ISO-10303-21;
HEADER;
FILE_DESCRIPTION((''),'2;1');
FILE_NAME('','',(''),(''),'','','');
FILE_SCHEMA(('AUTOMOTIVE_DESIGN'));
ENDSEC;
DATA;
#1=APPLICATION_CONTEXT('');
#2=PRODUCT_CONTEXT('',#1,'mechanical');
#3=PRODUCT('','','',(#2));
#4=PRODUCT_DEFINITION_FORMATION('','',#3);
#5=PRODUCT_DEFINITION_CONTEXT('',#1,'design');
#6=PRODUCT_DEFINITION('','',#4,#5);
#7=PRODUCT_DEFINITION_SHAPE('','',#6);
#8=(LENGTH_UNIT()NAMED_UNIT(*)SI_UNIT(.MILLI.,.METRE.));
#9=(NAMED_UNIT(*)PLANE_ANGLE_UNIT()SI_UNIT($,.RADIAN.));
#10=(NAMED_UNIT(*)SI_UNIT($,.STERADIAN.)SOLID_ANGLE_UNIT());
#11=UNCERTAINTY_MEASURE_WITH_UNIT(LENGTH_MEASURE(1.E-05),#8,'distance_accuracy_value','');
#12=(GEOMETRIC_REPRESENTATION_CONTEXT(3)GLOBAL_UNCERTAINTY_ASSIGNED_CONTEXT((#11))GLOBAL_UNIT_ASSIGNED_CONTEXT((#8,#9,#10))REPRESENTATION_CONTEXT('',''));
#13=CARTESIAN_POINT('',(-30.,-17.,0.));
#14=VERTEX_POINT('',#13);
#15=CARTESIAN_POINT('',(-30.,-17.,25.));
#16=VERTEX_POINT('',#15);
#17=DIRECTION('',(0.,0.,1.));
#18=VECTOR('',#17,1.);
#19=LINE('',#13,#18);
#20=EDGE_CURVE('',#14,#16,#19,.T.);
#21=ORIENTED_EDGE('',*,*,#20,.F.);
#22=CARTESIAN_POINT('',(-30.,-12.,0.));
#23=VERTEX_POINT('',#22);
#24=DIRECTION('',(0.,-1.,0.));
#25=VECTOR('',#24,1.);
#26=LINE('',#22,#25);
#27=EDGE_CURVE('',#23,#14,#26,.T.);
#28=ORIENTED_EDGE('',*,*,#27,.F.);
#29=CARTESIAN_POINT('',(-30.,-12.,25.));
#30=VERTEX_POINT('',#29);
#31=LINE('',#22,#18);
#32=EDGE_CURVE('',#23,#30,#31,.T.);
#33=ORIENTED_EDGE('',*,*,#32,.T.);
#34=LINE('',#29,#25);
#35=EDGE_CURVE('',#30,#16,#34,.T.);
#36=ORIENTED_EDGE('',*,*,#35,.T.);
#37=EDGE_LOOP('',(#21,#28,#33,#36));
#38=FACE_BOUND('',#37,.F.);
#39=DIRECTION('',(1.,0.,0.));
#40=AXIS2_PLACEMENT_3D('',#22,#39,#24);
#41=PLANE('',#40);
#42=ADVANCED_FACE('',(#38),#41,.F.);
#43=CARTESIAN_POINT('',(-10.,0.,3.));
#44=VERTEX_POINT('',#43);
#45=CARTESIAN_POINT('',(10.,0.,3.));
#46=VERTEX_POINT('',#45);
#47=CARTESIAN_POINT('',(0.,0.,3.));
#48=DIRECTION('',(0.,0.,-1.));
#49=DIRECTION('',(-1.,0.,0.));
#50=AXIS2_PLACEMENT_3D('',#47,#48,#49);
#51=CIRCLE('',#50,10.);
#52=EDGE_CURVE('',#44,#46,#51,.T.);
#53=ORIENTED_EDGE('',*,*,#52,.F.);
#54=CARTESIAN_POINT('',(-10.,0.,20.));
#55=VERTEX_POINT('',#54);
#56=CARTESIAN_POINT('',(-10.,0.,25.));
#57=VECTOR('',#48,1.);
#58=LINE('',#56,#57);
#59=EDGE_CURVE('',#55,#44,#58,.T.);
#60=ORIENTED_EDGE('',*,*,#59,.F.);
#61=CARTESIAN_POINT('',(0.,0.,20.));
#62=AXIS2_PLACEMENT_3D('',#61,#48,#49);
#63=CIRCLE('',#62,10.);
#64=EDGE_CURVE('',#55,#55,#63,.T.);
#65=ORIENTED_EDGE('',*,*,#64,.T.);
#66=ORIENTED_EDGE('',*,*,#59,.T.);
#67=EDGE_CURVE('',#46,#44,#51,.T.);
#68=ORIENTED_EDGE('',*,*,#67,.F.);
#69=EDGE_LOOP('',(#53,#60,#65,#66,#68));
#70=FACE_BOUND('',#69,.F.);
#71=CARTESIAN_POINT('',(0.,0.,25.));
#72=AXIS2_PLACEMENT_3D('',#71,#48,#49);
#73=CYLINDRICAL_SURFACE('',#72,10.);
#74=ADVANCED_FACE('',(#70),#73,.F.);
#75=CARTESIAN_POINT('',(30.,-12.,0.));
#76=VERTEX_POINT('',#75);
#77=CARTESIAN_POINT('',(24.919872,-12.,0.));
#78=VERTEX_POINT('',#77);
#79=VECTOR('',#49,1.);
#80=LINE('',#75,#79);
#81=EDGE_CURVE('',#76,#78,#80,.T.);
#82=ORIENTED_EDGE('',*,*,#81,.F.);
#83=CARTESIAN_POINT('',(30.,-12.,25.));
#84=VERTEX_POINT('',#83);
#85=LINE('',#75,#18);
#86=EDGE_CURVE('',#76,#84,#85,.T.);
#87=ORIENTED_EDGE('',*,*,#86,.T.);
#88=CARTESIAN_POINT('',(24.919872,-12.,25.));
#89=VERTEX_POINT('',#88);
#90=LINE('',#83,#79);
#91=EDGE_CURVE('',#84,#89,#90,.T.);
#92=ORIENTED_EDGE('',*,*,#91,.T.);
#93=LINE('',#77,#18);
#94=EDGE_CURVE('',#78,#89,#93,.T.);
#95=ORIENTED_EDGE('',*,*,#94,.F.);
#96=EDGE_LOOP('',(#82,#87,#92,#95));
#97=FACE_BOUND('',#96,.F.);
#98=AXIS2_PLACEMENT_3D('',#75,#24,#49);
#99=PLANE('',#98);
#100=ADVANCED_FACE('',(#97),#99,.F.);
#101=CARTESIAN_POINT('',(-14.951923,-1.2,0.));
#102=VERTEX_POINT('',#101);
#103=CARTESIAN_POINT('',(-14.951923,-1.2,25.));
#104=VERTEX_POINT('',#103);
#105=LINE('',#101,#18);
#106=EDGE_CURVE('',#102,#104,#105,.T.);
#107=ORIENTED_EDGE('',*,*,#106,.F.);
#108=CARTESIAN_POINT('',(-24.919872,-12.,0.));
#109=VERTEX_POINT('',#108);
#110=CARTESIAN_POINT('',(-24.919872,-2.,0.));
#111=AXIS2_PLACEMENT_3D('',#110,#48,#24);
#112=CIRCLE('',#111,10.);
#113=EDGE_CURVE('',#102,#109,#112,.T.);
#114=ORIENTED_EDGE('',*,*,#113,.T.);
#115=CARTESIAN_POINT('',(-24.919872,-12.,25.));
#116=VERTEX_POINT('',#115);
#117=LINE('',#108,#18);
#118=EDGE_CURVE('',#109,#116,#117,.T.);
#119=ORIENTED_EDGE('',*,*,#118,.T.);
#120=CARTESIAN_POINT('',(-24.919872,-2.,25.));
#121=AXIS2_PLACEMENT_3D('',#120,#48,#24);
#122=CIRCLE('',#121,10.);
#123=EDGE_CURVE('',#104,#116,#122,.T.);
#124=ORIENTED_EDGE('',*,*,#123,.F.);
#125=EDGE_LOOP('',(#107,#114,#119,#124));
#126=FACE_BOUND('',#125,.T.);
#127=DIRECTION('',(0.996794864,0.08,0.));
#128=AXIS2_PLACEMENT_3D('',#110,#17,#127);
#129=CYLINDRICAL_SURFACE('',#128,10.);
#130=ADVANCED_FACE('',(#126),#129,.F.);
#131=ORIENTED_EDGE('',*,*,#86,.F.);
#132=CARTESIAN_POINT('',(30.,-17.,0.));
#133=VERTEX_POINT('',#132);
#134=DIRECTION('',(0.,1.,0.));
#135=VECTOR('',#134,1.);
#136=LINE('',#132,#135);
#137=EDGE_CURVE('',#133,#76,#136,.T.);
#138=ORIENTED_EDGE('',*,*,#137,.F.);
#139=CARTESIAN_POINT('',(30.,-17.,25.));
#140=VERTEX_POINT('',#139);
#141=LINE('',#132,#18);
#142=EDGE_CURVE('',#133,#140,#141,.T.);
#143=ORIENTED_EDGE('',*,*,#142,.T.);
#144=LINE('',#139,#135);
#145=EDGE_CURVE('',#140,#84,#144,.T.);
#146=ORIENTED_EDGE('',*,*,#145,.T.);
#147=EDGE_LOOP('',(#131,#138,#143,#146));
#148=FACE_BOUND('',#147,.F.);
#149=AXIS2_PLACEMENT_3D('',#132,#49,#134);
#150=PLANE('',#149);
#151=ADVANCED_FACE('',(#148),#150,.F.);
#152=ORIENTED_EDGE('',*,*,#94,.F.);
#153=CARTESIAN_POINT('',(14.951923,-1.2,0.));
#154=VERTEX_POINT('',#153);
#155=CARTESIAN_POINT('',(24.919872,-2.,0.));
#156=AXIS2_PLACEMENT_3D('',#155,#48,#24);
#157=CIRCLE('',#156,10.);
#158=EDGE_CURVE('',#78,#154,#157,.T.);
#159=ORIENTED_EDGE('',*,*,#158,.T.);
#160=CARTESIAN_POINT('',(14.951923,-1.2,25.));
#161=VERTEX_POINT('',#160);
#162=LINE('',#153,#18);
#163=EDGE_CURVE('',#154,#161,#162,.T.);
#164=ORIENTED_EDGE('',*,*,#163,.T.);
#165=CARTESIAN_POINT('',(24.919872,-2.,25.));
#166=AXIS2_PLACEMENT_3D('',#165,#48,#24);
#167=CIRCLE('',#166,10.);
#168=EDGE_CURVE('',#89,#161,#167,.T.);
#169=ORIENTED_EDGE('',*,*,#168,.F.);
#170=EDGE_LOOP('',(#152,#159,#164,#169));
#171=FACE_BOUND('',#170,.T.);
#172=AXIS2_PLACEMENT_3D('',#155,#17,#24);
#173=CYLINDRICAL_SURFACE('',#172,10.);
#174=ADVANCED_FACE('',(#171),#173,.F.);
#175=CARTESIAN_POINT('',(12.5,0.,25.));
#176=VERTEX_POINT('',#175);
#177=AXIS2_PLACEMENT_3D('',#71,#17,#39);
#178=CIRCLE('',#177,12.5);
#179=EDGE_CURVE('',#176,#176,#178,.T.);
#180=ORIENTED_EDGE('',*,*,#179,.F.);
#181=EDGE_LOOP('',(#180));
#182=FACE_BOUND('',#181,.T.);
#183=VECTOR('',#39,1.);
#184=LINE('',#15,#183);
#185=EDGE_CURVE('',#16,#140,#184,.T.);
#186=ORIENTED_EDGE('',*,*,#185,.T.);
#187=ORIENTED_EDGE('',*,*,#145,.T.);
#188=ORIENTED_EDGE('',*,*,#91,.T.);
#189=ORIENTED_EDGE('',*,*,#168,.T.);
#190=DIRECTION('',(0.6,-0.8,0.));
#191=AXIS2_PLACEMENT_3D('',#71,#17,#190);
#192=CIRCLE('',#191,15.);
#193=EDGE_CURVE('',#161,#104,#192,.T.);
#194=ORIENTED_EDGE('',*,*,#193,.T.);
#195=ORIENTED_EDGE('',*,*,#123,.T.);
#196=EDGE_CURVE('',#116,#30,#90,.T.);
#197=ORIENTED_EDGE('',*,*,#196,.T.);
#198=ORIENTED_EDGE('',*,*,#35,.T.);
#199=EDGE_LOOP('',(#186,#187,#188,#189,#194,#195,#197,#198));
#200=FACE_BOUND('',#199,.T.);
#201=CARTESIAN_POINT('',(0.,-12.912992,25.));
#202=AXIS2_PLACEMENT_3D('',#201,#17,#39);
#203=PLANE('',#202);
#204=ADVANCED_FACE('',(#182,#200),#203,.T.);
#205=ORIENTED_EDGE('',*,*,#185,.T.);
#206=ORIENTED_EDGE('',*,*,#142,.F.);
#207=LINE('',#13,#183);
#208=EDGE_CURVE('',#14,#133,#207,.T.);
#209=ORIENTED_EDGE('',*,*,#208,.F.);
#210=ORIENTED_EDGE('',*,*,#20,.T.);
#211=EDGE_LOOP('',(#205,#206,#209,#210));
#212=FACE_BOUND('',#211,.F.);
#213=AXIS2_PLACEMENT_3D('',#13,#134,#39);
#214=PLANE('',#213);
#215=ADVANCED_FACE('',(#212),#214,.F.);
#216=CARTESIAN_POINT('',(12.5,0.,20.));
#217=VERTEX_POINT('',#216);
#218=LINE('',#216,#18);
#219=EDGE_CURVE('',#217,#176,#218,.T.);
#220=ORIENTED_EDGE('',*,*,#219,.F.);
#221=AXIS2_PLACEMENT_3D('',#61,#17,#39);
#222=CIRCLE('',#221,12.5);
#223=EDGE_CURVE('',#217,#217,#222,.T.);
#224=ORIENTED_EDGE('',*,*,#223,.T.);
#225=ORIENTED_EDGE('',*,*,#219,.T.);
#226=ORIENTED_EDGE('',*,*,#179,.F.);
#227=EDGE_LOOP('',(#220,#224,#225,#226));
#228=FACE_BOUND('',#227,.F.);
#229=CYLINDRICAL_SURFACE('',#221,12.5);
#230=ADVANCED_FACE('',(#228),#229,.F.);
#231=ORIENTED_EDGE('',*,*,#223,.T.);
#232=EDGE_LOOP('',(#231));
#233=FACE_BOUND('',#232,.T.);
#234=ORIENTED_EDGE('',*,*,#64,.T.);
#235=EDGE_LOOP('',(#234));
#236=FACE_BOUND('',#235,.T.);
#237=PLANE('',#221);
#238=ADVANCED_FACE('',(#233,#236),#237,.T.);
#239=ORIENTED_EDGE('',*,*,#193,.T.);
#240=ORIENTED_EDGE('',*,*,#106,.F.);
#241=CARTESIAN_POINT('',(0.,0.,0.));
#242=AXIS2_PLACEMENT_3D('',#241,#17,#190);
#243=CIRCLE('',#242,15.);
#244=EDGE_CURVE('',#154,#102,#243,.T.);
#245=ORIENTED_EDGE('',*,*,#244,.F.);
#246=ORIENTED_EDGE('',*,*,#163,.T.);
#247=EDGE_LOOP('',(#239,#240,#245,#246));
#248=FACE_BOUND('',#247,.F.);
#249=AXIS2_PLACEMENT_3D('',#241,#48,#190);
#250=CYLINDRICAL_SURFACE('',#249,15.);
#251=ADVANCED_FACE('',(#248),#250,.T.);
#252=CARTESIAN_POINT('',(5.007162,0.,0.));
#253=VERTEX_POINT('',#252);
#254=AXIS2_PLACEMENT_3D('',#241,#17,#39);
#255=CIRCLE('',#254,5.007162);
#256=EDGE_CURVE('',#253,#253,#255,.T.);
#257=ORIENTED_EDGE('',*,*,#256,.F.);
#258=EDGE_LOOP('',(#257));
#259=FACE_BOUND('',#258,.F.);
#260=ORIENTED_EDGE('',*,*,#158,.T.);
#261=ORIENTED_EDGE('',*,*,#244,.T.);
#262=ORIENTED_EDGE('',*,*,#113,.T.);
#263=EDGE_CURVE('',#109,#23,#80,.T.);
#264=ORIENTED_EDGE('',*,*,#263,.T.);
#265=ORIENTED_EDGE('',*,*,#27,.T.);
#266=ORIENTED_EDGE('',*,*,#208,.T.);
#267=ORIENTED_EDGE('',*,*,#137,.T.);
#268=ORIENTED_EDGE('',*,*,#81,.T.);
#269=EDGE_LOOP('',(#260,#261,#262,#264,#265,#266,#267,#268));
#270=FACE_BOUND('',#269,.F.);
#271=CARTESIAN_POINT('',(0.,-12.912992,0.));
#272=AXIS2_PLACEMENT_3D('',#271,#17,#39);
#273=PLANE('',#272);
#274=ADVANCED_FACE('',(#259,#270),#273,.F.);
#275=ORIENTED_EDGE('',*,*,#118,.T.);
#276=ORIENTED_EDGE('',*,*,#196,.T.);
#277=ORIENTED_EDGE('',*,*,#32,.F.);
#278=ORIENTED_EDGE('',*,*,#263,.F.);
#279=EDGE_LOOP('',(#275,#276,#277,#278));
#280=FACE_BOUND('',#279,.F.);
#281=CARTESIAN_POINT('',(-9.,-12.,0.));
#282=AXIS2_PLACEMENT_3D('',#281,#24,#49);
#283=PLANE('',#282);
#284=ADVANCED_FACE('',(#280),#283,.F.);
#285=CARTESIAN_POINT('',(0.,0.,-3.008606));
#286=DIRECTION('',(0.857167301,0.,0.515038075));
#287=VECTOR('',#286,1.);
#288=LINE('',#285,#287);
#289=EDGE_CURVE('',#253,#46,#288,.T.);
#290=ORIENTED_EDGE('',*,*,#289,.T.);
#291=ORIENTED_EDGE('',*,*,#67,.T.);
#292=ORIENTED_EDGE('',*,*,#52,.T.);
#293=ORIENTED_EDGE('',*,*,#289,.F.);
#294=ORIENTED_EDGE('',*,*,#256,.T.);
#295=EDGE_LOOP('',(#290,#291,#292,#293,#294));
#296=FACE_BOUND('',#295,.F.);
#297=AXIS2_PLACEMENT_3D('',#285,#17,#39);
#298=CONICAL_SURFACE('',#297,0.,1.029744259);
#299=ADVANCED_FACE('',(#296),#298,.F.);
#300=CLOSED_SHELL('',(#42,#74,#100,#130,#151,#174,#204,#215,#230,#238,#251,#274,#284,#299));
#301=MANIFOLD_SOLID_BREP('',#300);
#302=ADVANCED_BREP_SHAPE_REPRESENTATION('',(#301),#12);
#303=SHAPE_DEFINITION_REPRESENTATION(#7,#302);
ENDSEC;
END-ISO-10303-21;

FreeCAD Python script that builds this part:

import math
import FreeCAD as App
import Part
import Sketcher

V = App.Vector
Q = App.Units.Quantity


def edges_at(feature, points):
    """Names of the edges that pass closest to the given points."""
    edges = feature.Shape.Edges
    near = lambda p: min(range(len(edges)), key=lambda i: edges[i].distToShape(Part.Vertex(*p))[0])
    return sorted({f"Edge{near(p) + 1}" for p in points})

doc = App.newDocument("Part")
params = doc.addObject("Spreadsheet::Sheet", "Params")
for row, (alias, value) in enumerate([
    ("sketch1_radius", "15 mm"),
    ("sketch1_width", "60 mm"),
    ("sketch1_width2", "21 mm"),
    ("sketch1_height", "5 mm"),
    ("pad1_length", "25 mm"),
    ("fillet_radius", "10 mm"),
    ("sketch2_diameter", "20 mm"),
    ("hole_diameter", "20 mm"),
    ("hole_depth", "22 mm"),
    ("hole_cbore_diameter", "25 mm"),
    ("hole_cbore_depth", "5 mm"),
], start=1):
    params.set(f"A{row}", alias)
    params.set(f"B{row}", "=" + value)
    params.setAlias(f"B{row}", alias)

body = doc.addObject("PartDesign::Body", "Body")

# Sketch on XY plane
sketch1 = body.newObject("Sketcher::SketchObject", "Sketch")
sketch1.AttachmentSupport = (doc.getObject("XY_Plane"), [""])
sketch1.MapMode = "FlatFace"
sketch1.addGeometry([
    Part.LineSegment(V(-30, -12, 0), V(-30, -17, 0)),  # 0
    Part.LineSegment(V(-30, -17, 0), V(30, -17, 0)),  # 1
    Part.LineSegment(V(30, -17, 0), V(30, -12, 0)),  # 2
    Part.LineSegment(V(30, -12, 0), V(9, -12, 0)),  # 3
    Part.ArcOfCircle(Part.Circle(V(0, 0, 0), V(0, 0, 1), 15), math.radians(-53), math.radians(233)),  # 4
    Part.LineSegment(V(-9, -12, 0), V(-30, -12, 0)),  # 5
], False)
sketch1.addConstraint([
    Sketcher.Constraint("Coincident", 0, 2, 1, 1),
    Sketcher.Constraint("Coincident", 1, 2, 2, 1),
    Sketcher.Constraint("Coincident", 2, 2, 3, 1),
    Sketcher.Constraint("Coincident", 3, 2, 4, 1),
    Sketcher.Constraint("Coincident", 4, 2, 5, 1),
    Sketcher.Constraint("Coincident", 5, 2, 0, 1),
    Sketcher.Constraint("Vertical", 0),
    Sketcher.Constraint("Horizontal", 1),
    Sketcher.Constraint("Vertical", 2),
    Sketcher.Constraint("Horizontal", 3),
    Sketcher.Constraint("Horizontal", 5),
    Sketcher.Constraint("Coincident", 4, 3, -1, 1),
    Sketcher.Constraint("Symmetric", 2, 2, 5, 2, -2),
    Sketcher.Constraint("Radius", 4, Q("15 mm")),
    Sketcher.Constraint("DistanceX", 1, 1, 1, 2, Q("60 mm")),
    Sketcher.Constraint("DistanceX", 3, 2, 3, 1, Q("21 mm")),
    Sketcher.Constraint("DistanceY", 0, 2, 0, 1, Q("5 mm")),
])
sketch1.setExpression("Constraints[13]", "Params.sketch1_radius")
sketch1.setExpression("Constraints[14]", "Params.sketch1_width")
sketch1.setExpression("Constraints[15]", "Params.sketch1_width2")
sketch1.setExpression("Constraints[16]", "Params.sketch1_height")
pad1 = body.newObject("PartDesign::Pad", "Pad")
pad1.Profile = sketch1
pad1.setExpression("Length", "Params.pad1_length")
doc.recompute()

fillet = body.newObject("PartDesign::Fillet", "Fillet")
fillet.Base = (pad1, edges_at(pad1, [(-9, -12, 12.5), (9, -12, 12.5)]))
fillet.setExpression("Radius", "Params.fillet_radius")

# Sketch on XY plane
sketch2 = body.newObject("Sketcher::SketchObject", "Sketch001")
sketch2.AttachmentSupport = (doc.getObject("XY_Plane"), [""])
sketch2.MapMode = "FlatFace"
sketch2.AttachmentOffset = App.Placement(V(0, 0, 25), App.Rotation())
sketch2.addGeometry(Part.Circle(V(0, 0, 0), V(0, 0, 1), 10), False)
sketch2.addConstraint([
    Sketcher.Constraint("Coincident", 0, 3, -1, 1),
    Sketcher.Constraint("Diameter", 0, Q("20 mm")),
])
sketch2.setExpression("Constraints[1]", "Params.sketch2_diameter")
doc.recompute()
hole = body.newObject("PartDesign::Hole", "Hole")
hole.Profile = sketch2
hole.ThreadType = "None"
hole.setExpression("Diameter", "Params.hole_diameter")
hole.DepthType = "Dimension"
hole.setExpression("Depth", "Params.hole_depth")
hole.DrillPoint = "Angled"
hole.DrillPointAngle = 118
hole.HoleCutType = "Counterbore"
hole.setExpression("HoleCutDiameter", "Params.hole_cbore_diameter")
hole.setExpression("HoleCutDepth", "Params.hole_cbore_depth")

doc.recompute()
